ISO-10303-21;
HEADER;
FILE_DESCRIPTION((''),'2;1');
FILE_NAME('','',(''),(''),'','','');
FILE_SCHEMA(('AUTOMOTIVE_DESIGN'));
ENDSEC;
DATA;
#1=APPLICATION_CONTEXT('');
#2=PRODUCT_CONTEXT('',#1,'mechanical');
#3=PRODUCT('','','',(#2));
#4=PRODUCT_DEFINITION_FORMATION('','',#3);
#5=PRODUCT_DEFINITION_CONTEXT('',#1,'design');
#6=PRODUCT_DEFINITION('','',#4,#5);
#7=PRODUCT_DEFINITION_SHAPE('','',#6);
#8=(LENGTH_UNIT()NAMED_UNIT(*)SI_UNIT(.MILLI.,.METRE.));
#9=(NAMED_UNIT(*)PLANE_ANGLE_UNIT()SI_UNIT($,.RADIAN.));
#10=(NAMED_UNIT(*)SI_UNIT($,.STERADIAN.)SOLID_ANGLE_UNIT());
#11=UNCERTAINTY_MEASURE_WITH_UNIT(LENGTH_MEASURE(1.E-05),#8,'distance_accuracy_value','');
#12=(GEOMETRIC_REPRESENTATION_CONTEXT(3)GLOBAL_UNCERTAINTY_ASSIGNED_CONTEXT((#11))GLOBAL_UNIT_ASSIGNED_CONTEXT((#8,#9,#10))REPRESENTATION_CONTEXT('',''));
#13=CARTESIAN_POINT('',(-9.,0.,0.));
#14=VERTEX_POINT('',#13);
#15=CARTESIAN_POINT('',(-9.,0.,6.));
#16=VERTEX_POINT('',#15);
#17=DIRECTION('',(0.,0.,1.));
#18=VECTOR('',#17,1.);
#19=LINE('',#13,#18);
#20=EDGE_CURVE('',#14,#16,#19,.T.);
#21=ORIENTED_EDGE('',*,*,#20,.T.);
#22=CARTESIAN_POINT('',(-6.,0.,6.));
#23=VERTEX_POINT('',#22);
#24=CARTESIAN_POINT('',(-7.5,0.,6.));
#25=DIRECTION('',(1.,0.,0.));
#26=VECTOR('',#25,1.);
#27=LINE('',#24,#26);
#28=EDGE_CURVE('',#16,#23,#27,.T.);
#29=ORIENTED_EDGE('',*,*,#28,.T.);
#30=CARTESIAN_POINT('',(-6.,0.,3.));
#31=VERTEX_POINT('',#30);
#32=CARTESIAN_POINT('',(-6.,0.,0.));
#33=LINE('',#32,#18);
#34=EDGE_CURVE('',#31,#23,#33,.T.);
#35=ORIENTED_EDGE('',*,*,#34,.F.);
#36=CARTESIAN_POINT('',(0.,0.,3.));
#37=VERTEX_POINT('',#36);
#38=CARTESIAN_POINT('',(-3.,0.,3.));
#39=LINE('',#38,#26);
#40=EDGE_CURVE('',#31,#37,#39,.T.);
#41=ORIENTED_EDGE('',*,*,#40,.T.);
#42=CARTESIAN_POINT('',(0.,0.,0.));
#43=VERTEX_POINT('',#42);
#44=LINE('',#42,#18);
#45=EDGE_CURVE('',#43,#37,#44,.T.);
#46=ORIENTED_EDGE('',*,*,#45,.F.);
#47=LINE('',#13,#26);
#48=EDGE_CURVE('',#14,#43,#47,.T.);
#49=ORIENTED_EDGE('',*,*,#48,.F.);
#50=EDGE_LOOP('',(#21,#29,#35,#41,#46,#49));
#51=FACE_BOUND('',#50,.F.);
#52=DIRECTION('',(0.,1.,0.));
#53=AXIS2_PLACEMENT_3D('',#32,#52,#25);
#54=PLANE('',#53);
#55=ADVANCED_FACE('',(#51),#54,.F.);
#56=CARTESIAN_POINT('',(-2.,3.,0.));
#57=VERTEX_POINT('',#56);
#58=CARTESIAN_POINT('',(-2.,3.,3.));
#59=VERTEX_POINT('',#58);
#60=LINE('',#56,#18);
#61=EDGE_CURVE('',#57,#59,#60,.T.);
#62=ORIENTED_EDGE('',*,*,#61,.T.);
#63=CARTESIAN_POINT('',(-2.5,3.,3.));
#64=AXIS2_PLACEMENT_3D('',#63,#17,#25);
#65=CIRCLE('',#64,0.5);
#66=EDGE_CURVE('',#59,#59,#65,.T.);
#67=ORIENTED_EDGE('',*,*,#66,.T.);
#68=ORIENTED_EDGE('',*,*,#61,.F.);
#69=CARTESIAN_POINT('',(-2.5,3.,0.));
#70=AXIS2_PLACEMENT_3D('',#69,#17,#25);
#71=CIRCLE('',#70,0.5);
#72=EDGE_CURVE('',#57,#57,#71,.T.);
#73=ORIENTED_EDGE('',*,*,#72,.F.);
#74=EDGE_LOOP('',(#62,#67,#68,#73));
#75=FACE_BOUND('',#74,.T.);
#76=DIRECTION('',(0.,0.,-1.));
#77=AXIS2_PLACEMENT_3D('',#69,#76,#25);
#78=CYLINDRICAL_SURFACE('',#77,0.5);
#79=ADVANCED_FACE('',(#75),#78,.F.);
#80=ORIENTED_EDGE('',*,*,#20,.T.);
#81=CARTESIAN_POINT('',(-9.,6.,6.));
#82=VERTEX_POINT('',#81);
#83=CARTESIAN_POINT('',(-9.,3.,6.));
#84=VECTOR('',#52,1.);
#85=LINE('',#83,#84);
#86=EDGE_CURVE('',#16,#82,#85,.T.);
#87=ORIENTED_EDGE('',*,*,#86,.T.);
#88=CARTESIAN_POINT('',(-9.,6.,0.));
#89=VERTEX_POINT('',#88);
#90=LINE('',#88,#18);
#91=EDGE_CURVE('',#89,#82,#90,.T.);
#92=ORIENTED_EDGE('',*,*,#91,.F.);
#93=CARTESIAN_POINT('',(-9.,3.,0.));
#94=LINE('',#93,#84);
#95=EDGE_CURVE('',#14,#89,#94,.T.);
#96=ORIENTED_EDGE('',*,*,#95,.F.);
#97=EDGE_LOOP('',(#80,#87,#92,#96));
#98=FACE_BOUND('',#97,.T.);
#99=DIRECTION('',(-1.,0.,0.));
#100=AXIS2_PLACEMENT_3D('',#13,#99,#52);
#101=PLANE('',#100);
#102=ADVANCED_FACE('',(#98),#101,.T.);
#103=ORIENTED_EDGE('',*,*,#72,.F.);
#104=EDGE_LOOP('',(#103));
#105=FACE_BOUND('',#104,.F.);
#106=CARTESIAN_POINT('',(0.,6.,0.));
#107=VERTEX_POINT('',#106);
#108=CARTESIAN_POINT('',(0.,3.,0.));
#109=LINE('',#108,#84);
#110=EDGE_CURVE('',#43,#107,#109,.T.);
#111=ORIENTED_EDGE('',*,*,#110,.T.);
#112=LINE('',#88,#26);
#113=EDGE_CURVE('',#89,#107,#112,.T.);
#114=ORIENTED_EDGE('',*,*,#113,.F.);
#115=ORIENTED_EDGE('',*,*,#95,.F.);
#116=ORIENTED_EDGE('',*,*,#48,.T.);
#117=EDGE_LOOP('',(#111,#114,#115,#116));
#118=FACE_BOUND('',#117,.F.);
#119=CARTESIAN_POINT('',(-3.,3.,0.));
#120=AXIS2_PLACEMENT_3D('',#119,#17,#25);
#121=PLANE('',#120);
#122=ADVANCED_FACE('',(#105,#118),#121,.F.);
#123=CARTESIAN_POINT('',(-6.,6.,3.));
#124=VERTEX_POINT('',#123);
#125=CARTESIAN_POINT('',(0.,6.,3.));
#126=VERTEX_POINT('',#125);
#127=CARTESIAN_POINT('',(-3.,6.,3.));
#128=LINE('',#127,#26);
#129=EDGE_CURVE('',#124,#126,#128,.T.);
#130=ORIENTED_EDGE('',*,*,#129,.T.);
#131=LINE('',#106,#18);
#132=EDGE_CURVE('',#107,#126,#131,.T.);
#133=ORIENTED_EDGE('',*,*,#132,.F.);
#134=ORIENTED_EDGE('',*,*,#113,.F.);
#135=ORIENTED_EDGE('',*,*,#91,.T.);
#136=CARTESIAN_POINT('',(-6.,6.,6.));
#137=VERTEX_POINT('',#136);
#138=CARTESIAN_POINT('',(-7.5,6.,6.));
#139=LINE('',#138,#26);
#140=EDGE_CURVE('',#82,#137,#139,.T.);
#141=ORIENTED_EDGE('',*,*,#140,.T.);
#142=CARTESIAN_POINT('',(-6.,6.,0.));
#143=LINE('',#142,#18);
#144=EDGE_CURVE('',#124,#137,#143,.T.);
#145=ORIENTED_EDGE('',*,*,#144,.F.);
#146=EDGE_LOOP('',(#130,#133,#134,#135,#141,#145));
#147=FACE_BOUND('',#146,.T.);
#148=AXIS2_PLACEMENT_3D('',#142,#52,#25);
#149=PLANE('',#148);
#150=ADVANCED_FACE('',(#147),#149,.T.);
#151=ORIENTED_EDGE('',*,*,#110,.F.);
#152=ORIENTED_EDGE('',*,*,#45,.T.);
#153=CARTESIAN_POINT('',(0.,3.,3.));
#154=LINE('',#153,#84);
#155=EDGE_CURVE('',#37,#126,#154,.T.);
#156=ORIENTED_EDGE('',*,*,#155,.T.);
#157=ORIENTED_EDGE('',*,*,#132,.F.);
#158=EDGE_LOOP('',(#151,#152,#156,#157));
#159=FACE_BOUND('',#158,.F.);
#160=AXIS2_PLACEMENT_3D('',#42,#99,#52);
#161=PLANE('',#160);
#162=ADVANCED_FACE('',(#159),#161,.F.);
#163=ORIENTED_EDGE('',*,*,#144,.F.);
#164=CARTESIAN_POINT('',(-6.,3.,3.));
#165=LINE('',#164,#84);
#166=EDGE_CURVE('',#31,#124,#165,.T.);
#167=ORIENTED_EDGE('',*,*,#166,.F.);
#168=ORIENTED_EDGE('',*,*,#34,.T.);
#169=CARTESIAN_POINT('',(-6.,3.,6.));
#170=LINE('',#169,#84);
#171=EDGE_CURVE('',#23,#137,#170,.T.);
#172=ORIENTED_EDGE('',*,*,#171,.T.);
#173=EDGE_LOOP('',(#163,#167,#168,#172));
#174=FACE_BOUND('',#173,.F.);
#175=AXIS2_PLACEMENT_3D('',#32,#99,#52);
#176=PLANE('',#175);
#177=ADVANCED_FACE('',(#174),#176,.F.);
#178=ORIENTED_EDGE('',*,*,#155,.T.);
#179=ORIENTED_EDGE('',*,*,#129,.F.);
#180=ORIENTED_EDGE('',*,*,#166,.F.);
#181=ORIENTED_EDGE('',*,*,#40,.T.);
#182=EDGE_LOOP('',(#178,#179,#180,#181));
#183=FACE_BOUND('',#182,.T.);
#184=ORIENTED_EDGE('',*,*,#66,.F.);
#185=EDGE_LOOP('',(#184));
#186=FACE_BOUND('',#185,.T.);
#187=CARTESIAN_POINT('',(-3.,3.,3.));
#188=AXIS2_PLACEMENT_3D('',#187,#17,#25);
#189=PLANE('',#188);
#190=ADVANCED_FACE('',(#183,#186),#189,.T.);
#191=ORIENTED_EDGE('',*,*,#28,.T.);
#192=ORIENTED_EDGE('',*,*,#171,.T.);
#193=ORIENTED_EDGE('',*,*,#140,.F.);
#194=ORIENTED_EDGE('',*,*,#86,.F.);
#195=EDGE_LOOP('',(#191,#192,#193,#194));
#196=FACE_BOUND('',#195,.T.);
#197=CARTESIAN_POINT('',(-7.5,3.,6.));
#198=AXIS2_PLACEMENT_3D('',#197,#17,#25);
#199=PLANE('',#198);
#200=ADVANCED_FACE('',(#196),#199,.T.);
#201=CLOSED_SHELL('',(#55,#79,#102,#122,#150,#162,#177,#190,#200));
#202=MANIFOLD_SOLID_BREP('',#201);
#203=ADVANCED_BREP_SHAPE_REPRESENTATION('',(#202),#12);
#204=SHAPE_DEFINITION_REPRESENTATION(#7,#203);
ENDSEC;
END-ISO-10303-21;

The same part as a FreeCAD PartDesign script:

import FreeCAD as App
import Part
import Sketcher
from FreeCAD import Vector
Q = App.Units.Quantity


def add_polygon(sketch, points):
    """Adds a closed chain of lines whose ends are joined by coincident constraints."""
    first, n = sketch.GeometryCount, len(points)
    for a, b in zip(points, points[1:] + points[:1]):
        sketch.addGeometry(Part.LineSegment(App.Vector(*a, 0), App.Vector(*b, 0)), False)
    for i in range(n):
        sketch.addConstraint(Sketcher.Constraint("Coincident", first + i, 2, first + (i + 1) % n, 1))

doc = App.newDocument("Part")
body = doc.addObject("PartDesign::Body", "Body")

sketch1 = body.newObject("Sketcher::SketchObject", "Sketch")
sketch1.AttachmentSupport = (doc.getObject("XY_Plane"), [""])
sketch1.MapMode = "FlatFace"
add_polygon(sketch1, [(-9, 6), (-9, 0), (-6, 0), (-6, 6)])
sketch1.addConstraint([
    Sketcher.Constraint("Vertical", 0),
    Sketcher.Constraint("Horizontal", 1),
    Sketcher.Constraint("Vertical", 2),
    Sketcher.Constraint("Horizontal", 3),
    Sketcher.Constraint("PointOnObject", 0, 2, -1),
    Sketcher.Constraint("DistanceX", 1, 1, 1, 2, Q("3 mm")),
    Sketcher.Constraint("DistanceY", 0, 2, 0, 1, Q("6 mm")),
    Sketcher.Constraint("DistanceX", 0, 2, -1, 1, Q("9 mm")),
])
pad1 = body.newObject("PartDesign::Pad", "Pad")
pad1.Profile = sketch1
pad1.Length = 6

sketch2 = body.newObject("Sketcher::SketchObject", "Sketch001")
sketch2.AttachmentSupport = (doc.getObject("XY_Plane"), [""])
sketch2.MapMode = "FlatFace"
add_polygon(sketch2, [(-6, 6), (-6, 0), (0, 0), (0, 6)])
sketch2.addGeometry(Part.Circle(Vector(-2.5, 3, 0), Vector(0, 0, 1), 0.5), False)
sketch2.addConstraint([
    Sketcher.Constraint("Vertical", 0),
    Sketcher.Constraint("Horizontal", 1),
    Sketcher.Constraint("Vertical", 2),
    Sketcher.Constraint("Horizontal", 3),
    Sketcher.Constraint("Coincident", 1, 2, -1, 1),
    Sketcher.Constraint("Equal", 3, 0),
    Sketcher.Constraint("Diameter", 4, Q("1 mm")),
    Sketcher.Constraint("DistanceX", 1, 1, 1, 2, Q("6 mm")),
    Sketcher.Constraint("DistanceY", -1, 1, 4, 3, Q("3 mm")),
    Sketcher.Constraint("DistanceX", 4, 3, -1, 1, Q("2.5 mm")),
])
pad2 = body.newObject("PartDesign::Pad", "Pad001")
pad2.Profile = sketch2
pad2.Length = 3

doc.recompute()
